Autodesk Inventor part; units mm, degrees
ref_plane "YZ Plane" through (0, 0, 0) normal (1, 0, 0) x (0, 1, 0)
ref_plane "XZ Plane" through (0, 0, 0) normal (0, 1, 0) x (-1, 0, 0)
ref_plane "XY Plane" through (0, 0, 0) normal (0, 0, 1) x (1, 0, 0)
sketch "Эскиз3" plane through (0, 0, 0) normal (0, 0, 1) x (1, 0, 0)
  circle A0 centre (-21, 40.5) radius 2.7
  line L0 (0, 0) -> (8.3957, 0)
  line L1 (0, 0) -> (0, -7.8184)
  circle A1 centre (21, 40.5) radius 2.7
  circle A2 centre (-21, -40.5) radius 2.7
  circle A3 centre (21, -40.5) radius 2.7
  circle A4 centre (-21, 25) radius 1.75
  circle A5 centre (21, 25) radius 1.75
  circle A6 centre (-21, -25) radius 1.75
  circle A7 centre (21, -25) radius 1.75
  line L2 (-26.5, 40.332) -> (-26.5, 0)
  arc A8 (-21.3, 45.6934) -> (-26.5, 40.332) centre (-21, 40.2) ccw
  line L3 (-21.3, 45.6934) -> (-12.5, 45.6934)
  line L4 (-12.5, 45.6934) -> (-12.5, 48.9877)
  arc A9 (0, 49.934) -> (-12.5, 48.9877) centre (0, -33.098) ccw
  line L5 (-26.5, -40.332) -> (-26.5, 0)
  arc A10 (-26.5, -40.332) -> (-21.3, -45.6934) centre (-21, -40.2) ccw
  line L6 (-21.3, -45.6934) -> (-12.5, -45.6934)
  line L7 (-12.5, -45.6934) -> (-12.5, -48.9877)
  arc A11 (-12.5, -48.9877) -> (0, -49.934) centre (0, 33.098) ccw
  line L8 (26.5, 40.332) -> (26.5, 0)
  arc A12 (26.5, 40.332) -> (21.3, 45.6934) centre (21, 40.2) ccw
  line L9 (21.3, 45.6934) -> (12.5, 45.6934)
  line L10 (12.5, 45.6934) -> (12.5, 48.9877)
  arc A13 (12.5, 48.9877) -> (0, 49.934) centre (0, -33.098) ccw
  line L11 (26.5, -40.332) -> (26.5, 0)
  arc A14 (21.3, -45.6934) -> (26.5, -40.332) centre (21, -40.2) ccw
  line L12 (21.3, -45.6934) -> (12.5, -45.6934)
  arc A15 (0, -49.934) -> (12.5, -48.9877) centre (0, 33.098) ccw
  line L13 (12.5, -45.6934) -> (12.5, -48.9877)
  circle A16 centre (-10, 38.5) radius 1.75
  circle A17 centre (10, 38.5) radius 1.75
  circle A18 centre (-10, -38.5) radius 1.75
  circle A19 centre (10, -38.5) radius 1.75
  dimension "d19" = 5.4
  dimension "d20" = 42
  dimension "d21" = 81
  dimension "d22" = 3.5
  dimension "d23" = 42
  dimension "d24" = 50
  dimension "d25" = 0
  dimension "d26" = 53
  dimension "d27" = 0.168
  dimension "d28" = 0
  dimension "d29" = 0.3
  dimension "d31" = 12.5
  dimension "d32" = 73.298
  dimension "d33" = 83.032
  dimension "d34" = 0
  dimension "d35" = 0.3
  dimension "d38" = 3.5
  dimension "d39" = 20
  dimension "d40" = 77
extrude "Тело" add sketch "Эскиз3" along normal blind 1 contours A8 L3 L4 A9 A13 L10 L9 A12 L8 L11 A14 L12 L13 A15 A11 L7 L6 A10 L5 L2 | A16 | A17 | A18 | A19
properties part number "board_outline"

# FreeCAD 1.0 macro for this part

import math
import FreeCAD as App
import Part
import Sketcher
from FreeCAD import Vector
Q = App.Units.Quantity

doc = App.newDocument("Part")
params = doc.addObject("Spreadsheet::Sheet", "Params")
for row, (alias, value) in enumerate([
    ("sketch1_diameter", "5.4 mm"),
    ("sketch1_diameter2", "3.5 mm"),
    ("pad1_length", "1 mm"),
], start=1):
    params.set(f"A{row}", alias)
    params.set(f"B{row}", "=" + value)
    params.setAlias(f"B{row}", alias)

body = doc.addObject("PartDesign::Body", "Body")

sketch1 = doc.addObject("Sketcher::SketchObject", "Sketch")
body.addObject(sketch1)
sketch1.AttachmentSupport = (doc.XY_Plane, [""])
sketch1.MapMode = "FlatFace"
sketch1.addGeometry([
    Part.ArcOfCircle(Part.Circle(Vector(-21, 40.2, 0), Vector(0, 0, 1), 5.501586), math.radians(93.125874), math.radians(178.625165)),
    Part.LineSegment(Vector(-26.5, 40.332, 0), Vector(-26.5, -40.332, 0)),
    Part.ArcOfCircle(Part.Circle(Vector(-21, -40.2, 0), Vector(0, 0, 1), 5.501584), math.radians(-178.625165), math.radians(-93.125874)),
    Part.LineSegment(Vector(-21.3, -45.6934, 0), Vector(-12.5, -45.6934, 0)),
    Part.LineSegment(Vector(-12.5, -45.6934, 0), Vector(-12.5, -48.9877, 0)),
    Part.ArcOfCircle(Part.Circle(Vector(0, 33.098, 0), Vector(0, 0, 1), 83.032), math.radians(-98.658475), math.radians(-90)),
    Part.ArcOfCircle(Part.Circle(Vector(0, 33.098, 0), Vector(0, 0, 1), 83.031995), math.radians(-90), math.radians(-81.341525)),
    Part.LineSegment(Vector(12.5, -48.9877, 0), Vector(12.5, -45.6934, 0)),
    Part.LineSegment(Vector(12.5, -45.6934, 0), Vector(21.3, -45.6934, 0)),
    Part.ArcOfCircle(Part.Circle(Vector(21, -40.2, 0), Vector(0, 0, 1), 5.501586), math.radians(-86.874126), math.radians(-1.374835)),
    Part.LineSegment(Vector(26.5, -40.332, 0), Vector(26.5, 40.332, 0)),
    Part.ArcOfCircle(Part.Circle(Vector(21, 40.2, 0), Vector(0, 0, 1), 5.501584), math.radians(1.374835), math.radians(86.874126)),
    Part.LineSegment(Vector(21.3, 45.6934, 0), Vector(12.5, 45.6934, 0)),
    Part.LineSegment(Vector(12.5, 45.6934, 0), Vector(12.5, 48.9877, 0)),
    Part.ArcOfCircle(Part.Circle(Vector(0, -33.098, 0), Vector(0, 0, 1), 83.032), math.radians(81.341525), math.radians(90)),
    Part.ArcOfCircle(Part.Circle(Vector(0, -33.098, 0), Vector(0, 0, 1), 83.031995), math.radians(90), math.radians(98.658475)),
    Part.LineSegment(Vector(-12.5, 48.9877, 0), Vector(-12.5, 45.6934, 0)),
    Part.LineSegment(Vector(-12.5, 45.6934, 0), Vector(-21.3, 45.6934, 0)),
    Part.Circle(Vector(-21, -40.5, 0), Vector(0, 0, 1), 2.7),
    Part.Circle(Vector(-21, -25, 0), Vector(0, 0, 1), 1.75),
    Part.Circle(Vector(21, -40.5, 0), Vector(0, 0, 1), 2.7),
    Part.Circle(Vector(21, -25, 0), Vector(0, 0, 1), 1.75),
    Part.Circle(Vector(-21, 25, 0), Vector(0, 0, 1), 1.75),
    Part.Circle(Vector(-21, 40.5, 0), Vector(0, 0, 1), 2.7),
    Part.Circle(Vector(21, 25, 0), Vector(0, 0, 1), 1.75),
    Part.Circle(Vector(21, 40.5, 0), Vector(0, 0, 1), 2.7),
], False)
sketch1.addConstraint([
    Sketcher.Constraint("Coincident", 0, 2, 1, 1),
    Sketcher.Constraint("Coincident", 1, 2, 2, 1),
    Sketcher.Constraint("Coincident", 2, 2, 3, 1),
    Sketcher.Constraint("Coincident", 3, 2, 4, 1),
    Sketcher.Constraint("Coincident", 4, 2, 5, 1),
    Sketcher.Constraint("Tangent", 5, 2, 6, 1),
    Sketcher.Constraint("Coincident", 6, 2, 7, 1),
    Sketcher.Constraint("Coincident", 7, 2, 8, 1),
    Sketcher.Constraint("Coincident", 8, 2, 9, 1),
    Sketcher.Constraint("Coincident", 9, 2, 10, 1),
    Sketcher.Constraint("Coincident", 10, 2, 11, 1),
    Sketcher.Constraint("Coincident", 11, 2, 12, 1),
    Sketcher.Constraint("Coincident", 12, 2, 13, 1),
    Sketcher.Constraint("Coincident", 13, 2, 14, 1),
    Sketcher.Constraint("Tangent", 14, 2, 15, 1),
    Sketcher.Constraint("Coincident", 15, 2, 16, 1),
    Sketcher.Constraint("Coincident", 16, 2, 17, 1),
    Sketcher.Constraint("Coincident", 17, 2, 0, 1),
    Sketcher.Constraint("Vertical", 1),
    Sketcher.Constraint("Horizontal", 3),
    Sketcher.Constraint("Vertical", 4),
    Sketcher.Constraint("Vertical", 7),
    Sketcher.Constraint("Horizontal", 8),
    Sketcher.Constraint("Vertical", 10),
    Sketcher.Constraint("Horizontal", 12),
    Sketcher.Constraint("Vertical", 13),
    Sketcher.Constraint("Vertical", 16),
    Sketcher.Constraint("Horizontal", 17),
    Sketcher.Constraint("Equal", 0, 2),
    Sketcher.Constraint("Equal", 5, 6),
    Sketcher.Constraint("Equal", 2, 9),
    Sketcher.Constraint("Equal", 9, 11),
    Sketcher.Constraint("Equal", 6, 14),
    Sketcher.Constraint("Equal", 14, 15),
    Sketcher.Constraint("Equal", 18, 20),
    Sketcher.Constraint("Equal", 19, 21),
    Sketcher.Constraint("Equal", 21, 22),
    Sketcher.Constraint("Equal", 20, 23),
    Sketcher.Constraint("Equal", 22, 24),
    Sketcher.Constraint("Equal", 23, 25),
    Sketcher.Constraint("Symmetric", 0, 3, 9, 3, -1, 1),
    Sketcher.Constraint("Symmetric", 2, 3, 11, 3, -1, 1),
    Sketcher.Constraint("Symmetric", 5, 3, 14, 3, -1, 1),
    Sketcher.Constraint("Symmetric", 21, 3, 22, 3, -1, 1),
    Sketcher.Constraint("Symmetric", 20, 3, 23, 3, -1, 1),
    Sketcher.Constraint("Symmetric", 19, 3, 24, 3, -1, 1),
    Sketcher.Constraint("Symmetric", 18, 3, 25, 3, -1, 1),
    Sketcher.Constraint("Symmetric", 3, 2, 12, 2, -1, 1),
    Sketcher.Constraint("Symmetric", 7, 2, 16, 2, -1, 1),
    Sketcher.Constraint("Symmetric", 2, 3, 9, 3, -2),
    Sketcher.Constraint("Symmetric", 18, 3, 20, 3, -2),
    Sketcher.Constraint("Symmetric", 19, 3, 21, 3, -2),
    Sketcher.Constraint("Symmetric", 4, 2, 6, 2, -2),
    Sketcher.Constraint("PointOnObject", 5, 2, -2),
    Sketcher.Constraint("PointOnObject", 14, 2, -2),
    Sketcher.Constraint("Horizontal", 3, 2, 7, 2),
    Sketcher.Constraint("Horizontal", 1, 2, 9, 2),
    Sketcher.Constraint("Vertical", 2, 3, 18, 3),
    Sketcher.Constraint("Vertical", 18, 3, 19, 3),
    Sketcher.Constraint("Diameter", 18, Q("5.4 mm")),
    Sketcher.Constraint("Diameter", 19, Q("3.5 mm")),
    Sketcher.Constraint("Radius", 5, Q("83.032 mm")),
    Sketcher.Constraint("DistanceX", 2, 3, 9, 3, Q("42 mm")),
    Sketcher.Constraint("DistanceY", 19, 3, 22, 3, Q("50 mm")),
    Sketcher.Constraint("DistanceX", 3, 2, -1, 1, Q("12.5 mm")),
    Sketcher.Constraint("DistanceY", 18, 3, 2, 3, Q("0.3 mm")),
    Sketcher.Constraint("DistanceX", 2, 2, 18, 3, Q("0.3 mm")),
    Sketcher.Constraint("DistanceY", 2, 3, 5, 3, Q("73.298 mm")),
    Sketcher.Constraint("DistanceY", 0, 2, 23, 3, Q("0.168 mm")),
    Sketcher.Constraint("DistanceX", 1, 2, 3, 2, Q("14 mm")),
    Sketcher.Constraint("DistanceY", -1, 1, 0, 3, Q("40.2 mm")),
])
sketch1.setExpression("Constraints[59]", "Params.sketch1_diameter")
sketch1.setExpression("Constraints[60]", "Params.sketch1_diameter2")
pad1 = doc.addObject("PartDesign::Pad", "Pad")
body.addObject(pad1)
pad1.Profile = sketch1
pad1.setExpression("Length", "Params.pad1_length")

doc.recompute()
